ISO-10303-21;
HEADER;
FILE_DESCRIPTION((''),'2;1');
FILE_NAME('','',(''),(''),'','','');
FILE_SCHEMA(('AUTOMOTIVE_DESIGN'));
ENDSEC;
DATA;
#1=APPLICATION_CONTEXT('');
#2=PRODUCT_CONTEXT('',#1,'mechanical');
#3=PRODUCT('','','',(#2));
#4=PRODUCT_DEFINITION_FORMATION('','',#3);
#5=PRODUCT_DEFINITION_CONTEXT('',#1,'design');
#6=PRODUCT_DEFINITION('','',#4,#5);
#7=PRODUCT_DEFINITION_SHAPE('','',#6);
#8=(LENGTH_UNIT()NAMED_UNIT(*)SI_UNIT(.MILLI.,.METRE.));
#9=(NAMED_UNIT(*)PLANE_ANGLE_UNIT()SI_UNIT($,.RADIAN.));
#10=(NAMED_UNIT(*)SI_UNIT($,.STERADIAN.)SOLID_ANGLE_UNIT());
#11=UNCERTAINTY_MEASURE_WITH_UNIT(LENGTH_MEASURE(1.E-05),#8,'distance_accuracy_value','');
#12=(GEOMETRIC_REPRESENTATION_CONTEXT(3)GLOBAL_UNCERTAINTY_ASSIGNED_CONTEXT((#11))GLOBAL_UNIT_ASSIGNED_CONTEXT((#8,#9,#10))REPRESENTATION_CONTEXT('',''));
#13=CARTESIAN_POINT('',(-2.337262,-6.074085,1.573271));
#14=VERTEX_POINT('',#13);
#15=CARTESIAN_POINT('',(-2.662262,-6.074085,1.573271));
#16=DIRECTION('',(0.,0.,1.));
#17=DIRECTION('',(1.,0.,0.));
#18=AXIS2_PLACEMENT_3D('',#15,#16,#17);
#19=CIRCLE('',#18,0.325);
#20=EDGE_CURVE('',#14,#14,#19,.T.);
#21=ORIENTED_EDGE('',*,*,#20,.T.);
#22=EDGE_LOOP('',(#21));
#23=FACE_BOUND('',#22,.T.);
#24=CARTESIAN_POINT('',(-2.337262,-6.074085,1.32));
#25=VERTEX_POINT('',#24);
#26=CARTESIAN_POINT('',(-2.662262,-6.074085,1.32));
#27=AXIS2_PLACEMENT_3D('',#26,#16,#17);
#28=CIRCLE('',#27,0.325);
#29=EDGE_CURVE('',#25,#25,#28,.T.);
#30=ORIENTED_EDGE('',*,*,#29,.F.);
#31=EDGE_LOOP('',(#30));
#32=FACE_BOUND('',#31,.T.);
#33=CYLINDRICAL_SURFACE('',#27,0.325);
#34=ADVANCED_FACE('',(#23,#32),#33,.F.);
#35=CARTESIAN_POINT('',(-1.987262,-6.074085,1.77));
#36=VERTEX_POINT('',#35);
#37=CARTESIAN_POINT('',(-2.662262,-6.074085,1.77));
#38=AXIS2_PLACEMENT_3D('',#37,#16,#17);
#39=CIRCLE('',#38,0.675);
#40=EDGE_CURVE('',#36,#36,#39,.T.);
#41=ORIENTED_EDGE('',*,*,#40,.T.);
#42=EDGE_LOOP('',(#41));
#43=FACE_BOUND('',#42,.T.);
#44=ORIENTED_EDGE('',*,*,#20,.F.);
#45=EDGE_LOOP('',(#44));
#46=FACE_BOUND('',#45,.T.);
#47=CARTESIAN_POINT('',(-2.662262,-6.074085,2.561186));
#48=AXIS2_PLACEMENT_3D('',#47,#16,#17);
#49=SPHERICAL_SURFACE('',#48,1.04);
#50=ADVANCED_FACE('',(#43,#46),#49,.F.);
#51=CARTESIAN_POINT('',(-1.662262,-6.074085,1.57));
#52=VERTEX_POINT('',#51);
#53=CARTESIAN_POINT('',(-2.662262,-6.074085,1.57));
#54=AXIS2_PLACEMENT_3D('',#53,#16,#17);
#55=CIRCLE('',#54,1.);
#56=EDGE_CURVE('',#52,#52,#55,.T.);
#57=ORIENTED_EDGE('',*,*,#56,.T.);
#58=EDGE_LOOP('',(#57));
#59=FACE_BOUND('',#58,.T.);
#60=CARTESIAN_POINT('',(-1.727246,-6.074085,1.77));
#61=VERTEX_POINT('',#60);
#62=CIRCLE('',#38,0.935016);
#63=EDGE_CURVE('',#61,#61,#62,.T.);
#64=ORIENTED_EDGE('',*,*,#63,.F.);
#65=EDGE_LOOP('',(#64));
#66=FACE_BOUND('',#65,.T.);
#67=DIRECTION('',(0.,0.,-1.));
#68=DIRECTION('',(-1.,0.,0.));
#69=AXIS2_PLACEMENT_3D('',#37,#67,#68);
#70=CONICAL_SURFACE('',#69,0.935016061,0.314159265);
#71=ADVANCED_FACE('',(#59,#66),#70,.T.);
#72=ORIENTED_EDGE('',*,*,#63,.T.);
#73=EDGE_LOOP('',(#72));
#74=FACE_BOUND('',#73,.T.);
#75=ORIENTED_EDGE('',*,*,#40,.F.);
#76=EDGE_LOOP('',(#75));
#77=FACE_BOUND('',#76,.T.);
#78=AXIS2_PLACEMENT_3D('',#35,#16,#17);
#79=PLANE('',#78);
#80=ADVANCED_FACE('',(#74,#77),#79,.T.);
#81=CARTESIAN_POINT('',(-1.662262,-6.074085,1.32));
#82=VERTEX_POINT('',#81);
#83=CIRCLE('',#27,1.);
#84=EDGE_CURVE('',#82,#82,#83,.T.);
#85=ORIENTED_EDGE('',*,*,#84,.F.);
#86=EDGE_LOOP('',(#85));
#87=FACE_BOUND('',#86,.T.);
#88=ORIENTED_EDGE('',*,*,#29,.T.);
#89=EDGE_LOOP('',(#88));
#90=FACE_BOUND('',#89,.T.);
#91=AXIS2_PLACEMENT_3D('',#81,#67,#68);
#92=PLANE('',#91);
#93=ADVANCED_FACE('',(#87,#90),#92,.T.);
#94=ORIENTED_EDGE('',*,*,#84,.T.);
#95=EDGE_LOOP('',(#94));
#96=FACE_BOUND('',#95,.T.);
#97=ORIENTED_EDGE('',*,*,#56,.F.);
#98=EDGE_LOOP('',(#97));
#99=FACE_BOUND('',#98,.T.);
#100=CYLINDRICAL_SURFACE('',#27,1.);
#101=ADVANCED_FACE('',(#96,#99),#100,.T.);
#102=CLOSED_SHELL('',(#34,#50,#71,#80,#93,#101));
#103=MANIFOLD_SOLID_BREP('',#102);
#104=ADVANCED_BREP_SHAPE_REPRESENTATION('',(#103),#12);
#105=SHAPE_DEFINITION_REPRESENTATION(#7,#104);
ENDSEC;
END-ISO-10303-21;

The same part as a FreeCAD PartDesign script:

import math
import FreeCAD as App
import Part
import Sketcher
Q = App.Units.Quantity

doc = App.newDocument("Part")
body = doc.addObject("PartDesign::Body", "Body")

# Sketch on XZ plane
sketch1 = body.newObject("Sketcher::SketchObject", "Sketch")
sketch1.AttachmentSupport = (doc.getObject("XZ_Plane"), [""])
sketch1.MapMode = "FlatFace"
sketch1.AttachmentOffset = App.Placement(App.Vector(0, 0, 6.074085), App.Rotation())
sketch1.addGeometry(Part.LineSegment(App.Vector(-1.662262, 1.57, 0), App.Vector(-1.662262, 1.32, 0)), False)
sketch1.addGeometry(Part.LineSegment(App.Vector(-1.662262, 1.32, 0), App.Vector(-2.337262, 1.32, 0)), False)
sketch1.addGeometry(Part.LineSegment(App.Vector(-2.337262, 1.32, 0), App.Vector(-2.337262, 1.573271, 0)), False)
sketch1.addGeometry(Part.ArcOfCircle(Part.Circle(App.Vector(-2.662262, 2.561186, 0), App.Vector(0, 0, 1), 1.04), math.radians(-71.790043), math.radians(-49.530855)), False)
sketch1.addGeometry(Part.LineSegment(App.Vector(-1.987262, 1.77, 0), App.Vector(-1.727246, 1.77, 0)), False)
sketch1.addGeometry(Part.LineSegment(App.Vector(-1.727246, 1.77, 0), App.Vector(-1.662262, 1.57, 0)), False)
sketch1.addGeometry(Part.LineSegment(App.Vector(-2.662262, 1.32, 0), App.Vector(-2.662262, 2.561186, 0)), True)  # axis
sketch1.addConstraint(Sketcher.Constraint("Coincident", 0, 2, 1, 1))
sketch1.addConstraint(Sketcher.Constraint("Coincident", 1, 2, 2, 1))
sketch1.addConstraint(Sketcher.Constraint("Coincident", 2, 2, 3, 1))
sketch1.addConstraint(Sketcher.Constraint("Coincident", 3, 2, 4, 1))
sketch1.addConstraint(Sketcher.Constraint("Coincident", 4, 2, 5, 1))
sketch1.addConstraint(Sketcher.Constraint("Coincident", 5, 2, 0, 1))
sketch1.addConstraint(Sketcher.Constraint("Vertical", 0))
sketch1.addConstraint(Sketcher.Constraint("Horizontal", 1))
sketch1.addConstraint(Sketcher.Constraint("Vertical", 2))
sketch1.addConstraint(Sketcher.Constraint("Horizontal", 4))
sketch1.addConstraint(Sketcher.Constraint("Vertical", 6))
sketch1.addConstraint(Sketcher.Constraint("Coincident", 6, 2, 3, 3))
sketch1.addConstraint(Sketcher.Constraint("Horizontal", 1, 2, 6, 1))
sketch1.addConstraint(Sketcher.Constraint("Angle", 5, Q("-72 deg")))
sketch1.addConstraint(Sketcher.Constraint("Radius", 3, 1.04))
sketch1.addConstraint(Sketcher.Constraint("DistanceX", 3, 3, 0, 2, 1.0))
sketch1.addConstraint(Sketcher.Constraint("DistanceY", 0, 2, 0, 1, 0.25))
sketch1.addConstraint(Sketcher.Constraint("DistanceY", 5, 2, 4, 2, 0.2))
sketch1.addConstraint(Sketcher.Constraint("DistanceX", 1, 2, 1, 1, 0.675))
sketch1.addConstraint(Sketcher.Constraint("DistanceY", -1, 1, 0, 2, 1.32))
sketch1.addConstraint(Sketcher.Constraint("DistanceX", 2, 2, 3, 2, 0.35))
sketch1.addConstraint(Sketcher.Constraint("DistanceX", 0, 2, -1, 1, 1.662262))
revolution = body.newObject("PartDesign::Revolution", "Revolution")
revolution.Profile = sketch1
revolution.ReferenceAxis = (sketch1, ["Axis0"])
revolution.Angle = 360

doc.recompute()
